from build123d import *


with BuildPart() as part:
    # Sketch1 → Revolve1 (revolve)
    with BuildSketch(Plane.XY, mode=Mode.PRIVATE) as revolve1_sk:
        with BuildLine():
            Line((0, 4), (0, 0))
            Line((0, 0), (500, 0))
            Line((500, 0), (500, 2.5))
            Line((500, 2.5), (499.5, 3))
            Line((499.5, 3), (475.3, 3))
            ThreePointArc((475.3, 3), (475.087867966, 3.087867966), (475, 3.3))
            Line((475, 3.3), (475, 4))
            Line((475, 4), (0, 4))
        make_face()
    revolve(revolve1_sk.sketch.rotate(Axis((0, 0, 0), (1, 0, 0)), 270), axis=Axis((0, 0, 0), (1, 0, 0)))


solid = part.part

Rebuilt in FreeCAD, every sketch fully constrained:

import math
import FreeCAD as App
import Part
import Sketcher
from FreeCAD import Vector
Q = App.Units.Quantity

doc = App.newDocument("Part")
body = doc.addObject("PartDesign::Body", "Body")

# Sketch on XY plane
sketch1 = body.newObject("Sketcher::SketchObject", "Sketch")
sketch1.AttachmentSupport = (doc.getObject("XY_Plane"), [""])
sketch1.MapMode = "FlatFace"
sketch1.addGeometry(Part.LineSegment(Vector(0, 4, 0), Vector(0, 0, 0)), False)
sketch1.addGeometry(Part.LineSegment(Vector(0, 0, 0), Vector(500, 0, 0)), False)
sketch1.addGeometry(Part.LineSegment(Vector(500, 0, 0), Vector(500, 2.5, 0)), False)
sketch1.addGeometry(Part.LineSegment(Vector(500, 2.5, 0), Vector(499.5, 3, 0)), False)
sketch1.addGeometry(Part.LineSegment(Vector(499.5, 3, 0), Vector(475.3, 3, 0)), False)
sketch1.addGeometry(Part.ArcOfCircle(Part.Circle(Vector(475.3, 3.3, 0), Vector(0, 0, 1), 0.3), math.radians(-180), math.radians(-90)), False)
sketch1.addGeometry(Part.LineSegment(Vector(475, 3.3, 0), Vector(475, 4, 0)), False)
sketch1.addGeometry(Part.LineSegment(Vector(475, 4, 0), Vector(0, 4, 0)), False)
sketch1.addConstraint(Sketcher.Constraint("Coincident", 0, 2, 1, 1))
sketch1.addConstraint(Sketcher.Constraint("Coincident", 1, 2, 2, 1))
sketch1.addConstraint(Sketcher.Constraint("Coincident", 2, 2, 3, 1))
sketch1.addConstraint(Sketcher.Constraint("Coincident", 3, 2, 4, 1))
sketch1.addConstraint(Sketcher.Constraint("Tangent", 4, 2, 5, 2))
sketch1.addConstraint(Sketcher.Constraint("Tangent", 5, 1, 6, 1))
sketch1.addConstraint(Sketcher.Constraint("Coincident", 6, 2, 7, 1))
sketch1.addConstraint(Sketcher.Constraint("Coincident", 7, 2, 0, 1))
sketch1.addConstraint(Sketcher.Constraint("Vertical", 0))
sketch1.addConstraint(Sketcher.Constraint("Horizontal", 1))
sketch1.addConstraint(Sketcher.Constraint("Vertical", 2))
sketch1.addConstraint(Sketcher.Constraint("Horizontal", 4))
sketch1.addConstraint(Sketcher.Constraint("Vertical", 6))
sketch1.addConstraint(Sketcher.Constraint("Horizontal", 7))
sketch1.addConstraint(Sketcher.Constraint("Coincident", 0, 2, -1, 1))
sketch1.addConstraint(Sketcher.Constraint("Radius", 5, 0.3))
sketch1.addConstraint(Sketcher.Constraint("DistanceX", 1, 1, 1, 2, 500.0))
sketch1.addConstraint(Sketcher.Constraint("DistanceX", 7, 2, 7, 1, 475.0))
sketch1.addConstraint(Sketcher.Constraint("DistanceY", 0, 2, 0, 1, 4.0))
sketch1.addConstraint(Sketcher.Constraint("Angle", 3, Q("135 deg")))
sketch1.addConstraint(Sketcher.Constraint("DistanceX", 4, 2, 4, 1, 24.2))
sketch1.addConstraint(Sketcher.Constraint("DistanceY", 2, 1, 2, 2, 2.5))
revolution = body.newObject("PartDesign::Revolution", "Revolution")
revolution.Profile = sketch1
revolution.ReferenceAxis = (sketch1, ["H_Axis"])
revolution.Angle = 360

doc.recompute()
